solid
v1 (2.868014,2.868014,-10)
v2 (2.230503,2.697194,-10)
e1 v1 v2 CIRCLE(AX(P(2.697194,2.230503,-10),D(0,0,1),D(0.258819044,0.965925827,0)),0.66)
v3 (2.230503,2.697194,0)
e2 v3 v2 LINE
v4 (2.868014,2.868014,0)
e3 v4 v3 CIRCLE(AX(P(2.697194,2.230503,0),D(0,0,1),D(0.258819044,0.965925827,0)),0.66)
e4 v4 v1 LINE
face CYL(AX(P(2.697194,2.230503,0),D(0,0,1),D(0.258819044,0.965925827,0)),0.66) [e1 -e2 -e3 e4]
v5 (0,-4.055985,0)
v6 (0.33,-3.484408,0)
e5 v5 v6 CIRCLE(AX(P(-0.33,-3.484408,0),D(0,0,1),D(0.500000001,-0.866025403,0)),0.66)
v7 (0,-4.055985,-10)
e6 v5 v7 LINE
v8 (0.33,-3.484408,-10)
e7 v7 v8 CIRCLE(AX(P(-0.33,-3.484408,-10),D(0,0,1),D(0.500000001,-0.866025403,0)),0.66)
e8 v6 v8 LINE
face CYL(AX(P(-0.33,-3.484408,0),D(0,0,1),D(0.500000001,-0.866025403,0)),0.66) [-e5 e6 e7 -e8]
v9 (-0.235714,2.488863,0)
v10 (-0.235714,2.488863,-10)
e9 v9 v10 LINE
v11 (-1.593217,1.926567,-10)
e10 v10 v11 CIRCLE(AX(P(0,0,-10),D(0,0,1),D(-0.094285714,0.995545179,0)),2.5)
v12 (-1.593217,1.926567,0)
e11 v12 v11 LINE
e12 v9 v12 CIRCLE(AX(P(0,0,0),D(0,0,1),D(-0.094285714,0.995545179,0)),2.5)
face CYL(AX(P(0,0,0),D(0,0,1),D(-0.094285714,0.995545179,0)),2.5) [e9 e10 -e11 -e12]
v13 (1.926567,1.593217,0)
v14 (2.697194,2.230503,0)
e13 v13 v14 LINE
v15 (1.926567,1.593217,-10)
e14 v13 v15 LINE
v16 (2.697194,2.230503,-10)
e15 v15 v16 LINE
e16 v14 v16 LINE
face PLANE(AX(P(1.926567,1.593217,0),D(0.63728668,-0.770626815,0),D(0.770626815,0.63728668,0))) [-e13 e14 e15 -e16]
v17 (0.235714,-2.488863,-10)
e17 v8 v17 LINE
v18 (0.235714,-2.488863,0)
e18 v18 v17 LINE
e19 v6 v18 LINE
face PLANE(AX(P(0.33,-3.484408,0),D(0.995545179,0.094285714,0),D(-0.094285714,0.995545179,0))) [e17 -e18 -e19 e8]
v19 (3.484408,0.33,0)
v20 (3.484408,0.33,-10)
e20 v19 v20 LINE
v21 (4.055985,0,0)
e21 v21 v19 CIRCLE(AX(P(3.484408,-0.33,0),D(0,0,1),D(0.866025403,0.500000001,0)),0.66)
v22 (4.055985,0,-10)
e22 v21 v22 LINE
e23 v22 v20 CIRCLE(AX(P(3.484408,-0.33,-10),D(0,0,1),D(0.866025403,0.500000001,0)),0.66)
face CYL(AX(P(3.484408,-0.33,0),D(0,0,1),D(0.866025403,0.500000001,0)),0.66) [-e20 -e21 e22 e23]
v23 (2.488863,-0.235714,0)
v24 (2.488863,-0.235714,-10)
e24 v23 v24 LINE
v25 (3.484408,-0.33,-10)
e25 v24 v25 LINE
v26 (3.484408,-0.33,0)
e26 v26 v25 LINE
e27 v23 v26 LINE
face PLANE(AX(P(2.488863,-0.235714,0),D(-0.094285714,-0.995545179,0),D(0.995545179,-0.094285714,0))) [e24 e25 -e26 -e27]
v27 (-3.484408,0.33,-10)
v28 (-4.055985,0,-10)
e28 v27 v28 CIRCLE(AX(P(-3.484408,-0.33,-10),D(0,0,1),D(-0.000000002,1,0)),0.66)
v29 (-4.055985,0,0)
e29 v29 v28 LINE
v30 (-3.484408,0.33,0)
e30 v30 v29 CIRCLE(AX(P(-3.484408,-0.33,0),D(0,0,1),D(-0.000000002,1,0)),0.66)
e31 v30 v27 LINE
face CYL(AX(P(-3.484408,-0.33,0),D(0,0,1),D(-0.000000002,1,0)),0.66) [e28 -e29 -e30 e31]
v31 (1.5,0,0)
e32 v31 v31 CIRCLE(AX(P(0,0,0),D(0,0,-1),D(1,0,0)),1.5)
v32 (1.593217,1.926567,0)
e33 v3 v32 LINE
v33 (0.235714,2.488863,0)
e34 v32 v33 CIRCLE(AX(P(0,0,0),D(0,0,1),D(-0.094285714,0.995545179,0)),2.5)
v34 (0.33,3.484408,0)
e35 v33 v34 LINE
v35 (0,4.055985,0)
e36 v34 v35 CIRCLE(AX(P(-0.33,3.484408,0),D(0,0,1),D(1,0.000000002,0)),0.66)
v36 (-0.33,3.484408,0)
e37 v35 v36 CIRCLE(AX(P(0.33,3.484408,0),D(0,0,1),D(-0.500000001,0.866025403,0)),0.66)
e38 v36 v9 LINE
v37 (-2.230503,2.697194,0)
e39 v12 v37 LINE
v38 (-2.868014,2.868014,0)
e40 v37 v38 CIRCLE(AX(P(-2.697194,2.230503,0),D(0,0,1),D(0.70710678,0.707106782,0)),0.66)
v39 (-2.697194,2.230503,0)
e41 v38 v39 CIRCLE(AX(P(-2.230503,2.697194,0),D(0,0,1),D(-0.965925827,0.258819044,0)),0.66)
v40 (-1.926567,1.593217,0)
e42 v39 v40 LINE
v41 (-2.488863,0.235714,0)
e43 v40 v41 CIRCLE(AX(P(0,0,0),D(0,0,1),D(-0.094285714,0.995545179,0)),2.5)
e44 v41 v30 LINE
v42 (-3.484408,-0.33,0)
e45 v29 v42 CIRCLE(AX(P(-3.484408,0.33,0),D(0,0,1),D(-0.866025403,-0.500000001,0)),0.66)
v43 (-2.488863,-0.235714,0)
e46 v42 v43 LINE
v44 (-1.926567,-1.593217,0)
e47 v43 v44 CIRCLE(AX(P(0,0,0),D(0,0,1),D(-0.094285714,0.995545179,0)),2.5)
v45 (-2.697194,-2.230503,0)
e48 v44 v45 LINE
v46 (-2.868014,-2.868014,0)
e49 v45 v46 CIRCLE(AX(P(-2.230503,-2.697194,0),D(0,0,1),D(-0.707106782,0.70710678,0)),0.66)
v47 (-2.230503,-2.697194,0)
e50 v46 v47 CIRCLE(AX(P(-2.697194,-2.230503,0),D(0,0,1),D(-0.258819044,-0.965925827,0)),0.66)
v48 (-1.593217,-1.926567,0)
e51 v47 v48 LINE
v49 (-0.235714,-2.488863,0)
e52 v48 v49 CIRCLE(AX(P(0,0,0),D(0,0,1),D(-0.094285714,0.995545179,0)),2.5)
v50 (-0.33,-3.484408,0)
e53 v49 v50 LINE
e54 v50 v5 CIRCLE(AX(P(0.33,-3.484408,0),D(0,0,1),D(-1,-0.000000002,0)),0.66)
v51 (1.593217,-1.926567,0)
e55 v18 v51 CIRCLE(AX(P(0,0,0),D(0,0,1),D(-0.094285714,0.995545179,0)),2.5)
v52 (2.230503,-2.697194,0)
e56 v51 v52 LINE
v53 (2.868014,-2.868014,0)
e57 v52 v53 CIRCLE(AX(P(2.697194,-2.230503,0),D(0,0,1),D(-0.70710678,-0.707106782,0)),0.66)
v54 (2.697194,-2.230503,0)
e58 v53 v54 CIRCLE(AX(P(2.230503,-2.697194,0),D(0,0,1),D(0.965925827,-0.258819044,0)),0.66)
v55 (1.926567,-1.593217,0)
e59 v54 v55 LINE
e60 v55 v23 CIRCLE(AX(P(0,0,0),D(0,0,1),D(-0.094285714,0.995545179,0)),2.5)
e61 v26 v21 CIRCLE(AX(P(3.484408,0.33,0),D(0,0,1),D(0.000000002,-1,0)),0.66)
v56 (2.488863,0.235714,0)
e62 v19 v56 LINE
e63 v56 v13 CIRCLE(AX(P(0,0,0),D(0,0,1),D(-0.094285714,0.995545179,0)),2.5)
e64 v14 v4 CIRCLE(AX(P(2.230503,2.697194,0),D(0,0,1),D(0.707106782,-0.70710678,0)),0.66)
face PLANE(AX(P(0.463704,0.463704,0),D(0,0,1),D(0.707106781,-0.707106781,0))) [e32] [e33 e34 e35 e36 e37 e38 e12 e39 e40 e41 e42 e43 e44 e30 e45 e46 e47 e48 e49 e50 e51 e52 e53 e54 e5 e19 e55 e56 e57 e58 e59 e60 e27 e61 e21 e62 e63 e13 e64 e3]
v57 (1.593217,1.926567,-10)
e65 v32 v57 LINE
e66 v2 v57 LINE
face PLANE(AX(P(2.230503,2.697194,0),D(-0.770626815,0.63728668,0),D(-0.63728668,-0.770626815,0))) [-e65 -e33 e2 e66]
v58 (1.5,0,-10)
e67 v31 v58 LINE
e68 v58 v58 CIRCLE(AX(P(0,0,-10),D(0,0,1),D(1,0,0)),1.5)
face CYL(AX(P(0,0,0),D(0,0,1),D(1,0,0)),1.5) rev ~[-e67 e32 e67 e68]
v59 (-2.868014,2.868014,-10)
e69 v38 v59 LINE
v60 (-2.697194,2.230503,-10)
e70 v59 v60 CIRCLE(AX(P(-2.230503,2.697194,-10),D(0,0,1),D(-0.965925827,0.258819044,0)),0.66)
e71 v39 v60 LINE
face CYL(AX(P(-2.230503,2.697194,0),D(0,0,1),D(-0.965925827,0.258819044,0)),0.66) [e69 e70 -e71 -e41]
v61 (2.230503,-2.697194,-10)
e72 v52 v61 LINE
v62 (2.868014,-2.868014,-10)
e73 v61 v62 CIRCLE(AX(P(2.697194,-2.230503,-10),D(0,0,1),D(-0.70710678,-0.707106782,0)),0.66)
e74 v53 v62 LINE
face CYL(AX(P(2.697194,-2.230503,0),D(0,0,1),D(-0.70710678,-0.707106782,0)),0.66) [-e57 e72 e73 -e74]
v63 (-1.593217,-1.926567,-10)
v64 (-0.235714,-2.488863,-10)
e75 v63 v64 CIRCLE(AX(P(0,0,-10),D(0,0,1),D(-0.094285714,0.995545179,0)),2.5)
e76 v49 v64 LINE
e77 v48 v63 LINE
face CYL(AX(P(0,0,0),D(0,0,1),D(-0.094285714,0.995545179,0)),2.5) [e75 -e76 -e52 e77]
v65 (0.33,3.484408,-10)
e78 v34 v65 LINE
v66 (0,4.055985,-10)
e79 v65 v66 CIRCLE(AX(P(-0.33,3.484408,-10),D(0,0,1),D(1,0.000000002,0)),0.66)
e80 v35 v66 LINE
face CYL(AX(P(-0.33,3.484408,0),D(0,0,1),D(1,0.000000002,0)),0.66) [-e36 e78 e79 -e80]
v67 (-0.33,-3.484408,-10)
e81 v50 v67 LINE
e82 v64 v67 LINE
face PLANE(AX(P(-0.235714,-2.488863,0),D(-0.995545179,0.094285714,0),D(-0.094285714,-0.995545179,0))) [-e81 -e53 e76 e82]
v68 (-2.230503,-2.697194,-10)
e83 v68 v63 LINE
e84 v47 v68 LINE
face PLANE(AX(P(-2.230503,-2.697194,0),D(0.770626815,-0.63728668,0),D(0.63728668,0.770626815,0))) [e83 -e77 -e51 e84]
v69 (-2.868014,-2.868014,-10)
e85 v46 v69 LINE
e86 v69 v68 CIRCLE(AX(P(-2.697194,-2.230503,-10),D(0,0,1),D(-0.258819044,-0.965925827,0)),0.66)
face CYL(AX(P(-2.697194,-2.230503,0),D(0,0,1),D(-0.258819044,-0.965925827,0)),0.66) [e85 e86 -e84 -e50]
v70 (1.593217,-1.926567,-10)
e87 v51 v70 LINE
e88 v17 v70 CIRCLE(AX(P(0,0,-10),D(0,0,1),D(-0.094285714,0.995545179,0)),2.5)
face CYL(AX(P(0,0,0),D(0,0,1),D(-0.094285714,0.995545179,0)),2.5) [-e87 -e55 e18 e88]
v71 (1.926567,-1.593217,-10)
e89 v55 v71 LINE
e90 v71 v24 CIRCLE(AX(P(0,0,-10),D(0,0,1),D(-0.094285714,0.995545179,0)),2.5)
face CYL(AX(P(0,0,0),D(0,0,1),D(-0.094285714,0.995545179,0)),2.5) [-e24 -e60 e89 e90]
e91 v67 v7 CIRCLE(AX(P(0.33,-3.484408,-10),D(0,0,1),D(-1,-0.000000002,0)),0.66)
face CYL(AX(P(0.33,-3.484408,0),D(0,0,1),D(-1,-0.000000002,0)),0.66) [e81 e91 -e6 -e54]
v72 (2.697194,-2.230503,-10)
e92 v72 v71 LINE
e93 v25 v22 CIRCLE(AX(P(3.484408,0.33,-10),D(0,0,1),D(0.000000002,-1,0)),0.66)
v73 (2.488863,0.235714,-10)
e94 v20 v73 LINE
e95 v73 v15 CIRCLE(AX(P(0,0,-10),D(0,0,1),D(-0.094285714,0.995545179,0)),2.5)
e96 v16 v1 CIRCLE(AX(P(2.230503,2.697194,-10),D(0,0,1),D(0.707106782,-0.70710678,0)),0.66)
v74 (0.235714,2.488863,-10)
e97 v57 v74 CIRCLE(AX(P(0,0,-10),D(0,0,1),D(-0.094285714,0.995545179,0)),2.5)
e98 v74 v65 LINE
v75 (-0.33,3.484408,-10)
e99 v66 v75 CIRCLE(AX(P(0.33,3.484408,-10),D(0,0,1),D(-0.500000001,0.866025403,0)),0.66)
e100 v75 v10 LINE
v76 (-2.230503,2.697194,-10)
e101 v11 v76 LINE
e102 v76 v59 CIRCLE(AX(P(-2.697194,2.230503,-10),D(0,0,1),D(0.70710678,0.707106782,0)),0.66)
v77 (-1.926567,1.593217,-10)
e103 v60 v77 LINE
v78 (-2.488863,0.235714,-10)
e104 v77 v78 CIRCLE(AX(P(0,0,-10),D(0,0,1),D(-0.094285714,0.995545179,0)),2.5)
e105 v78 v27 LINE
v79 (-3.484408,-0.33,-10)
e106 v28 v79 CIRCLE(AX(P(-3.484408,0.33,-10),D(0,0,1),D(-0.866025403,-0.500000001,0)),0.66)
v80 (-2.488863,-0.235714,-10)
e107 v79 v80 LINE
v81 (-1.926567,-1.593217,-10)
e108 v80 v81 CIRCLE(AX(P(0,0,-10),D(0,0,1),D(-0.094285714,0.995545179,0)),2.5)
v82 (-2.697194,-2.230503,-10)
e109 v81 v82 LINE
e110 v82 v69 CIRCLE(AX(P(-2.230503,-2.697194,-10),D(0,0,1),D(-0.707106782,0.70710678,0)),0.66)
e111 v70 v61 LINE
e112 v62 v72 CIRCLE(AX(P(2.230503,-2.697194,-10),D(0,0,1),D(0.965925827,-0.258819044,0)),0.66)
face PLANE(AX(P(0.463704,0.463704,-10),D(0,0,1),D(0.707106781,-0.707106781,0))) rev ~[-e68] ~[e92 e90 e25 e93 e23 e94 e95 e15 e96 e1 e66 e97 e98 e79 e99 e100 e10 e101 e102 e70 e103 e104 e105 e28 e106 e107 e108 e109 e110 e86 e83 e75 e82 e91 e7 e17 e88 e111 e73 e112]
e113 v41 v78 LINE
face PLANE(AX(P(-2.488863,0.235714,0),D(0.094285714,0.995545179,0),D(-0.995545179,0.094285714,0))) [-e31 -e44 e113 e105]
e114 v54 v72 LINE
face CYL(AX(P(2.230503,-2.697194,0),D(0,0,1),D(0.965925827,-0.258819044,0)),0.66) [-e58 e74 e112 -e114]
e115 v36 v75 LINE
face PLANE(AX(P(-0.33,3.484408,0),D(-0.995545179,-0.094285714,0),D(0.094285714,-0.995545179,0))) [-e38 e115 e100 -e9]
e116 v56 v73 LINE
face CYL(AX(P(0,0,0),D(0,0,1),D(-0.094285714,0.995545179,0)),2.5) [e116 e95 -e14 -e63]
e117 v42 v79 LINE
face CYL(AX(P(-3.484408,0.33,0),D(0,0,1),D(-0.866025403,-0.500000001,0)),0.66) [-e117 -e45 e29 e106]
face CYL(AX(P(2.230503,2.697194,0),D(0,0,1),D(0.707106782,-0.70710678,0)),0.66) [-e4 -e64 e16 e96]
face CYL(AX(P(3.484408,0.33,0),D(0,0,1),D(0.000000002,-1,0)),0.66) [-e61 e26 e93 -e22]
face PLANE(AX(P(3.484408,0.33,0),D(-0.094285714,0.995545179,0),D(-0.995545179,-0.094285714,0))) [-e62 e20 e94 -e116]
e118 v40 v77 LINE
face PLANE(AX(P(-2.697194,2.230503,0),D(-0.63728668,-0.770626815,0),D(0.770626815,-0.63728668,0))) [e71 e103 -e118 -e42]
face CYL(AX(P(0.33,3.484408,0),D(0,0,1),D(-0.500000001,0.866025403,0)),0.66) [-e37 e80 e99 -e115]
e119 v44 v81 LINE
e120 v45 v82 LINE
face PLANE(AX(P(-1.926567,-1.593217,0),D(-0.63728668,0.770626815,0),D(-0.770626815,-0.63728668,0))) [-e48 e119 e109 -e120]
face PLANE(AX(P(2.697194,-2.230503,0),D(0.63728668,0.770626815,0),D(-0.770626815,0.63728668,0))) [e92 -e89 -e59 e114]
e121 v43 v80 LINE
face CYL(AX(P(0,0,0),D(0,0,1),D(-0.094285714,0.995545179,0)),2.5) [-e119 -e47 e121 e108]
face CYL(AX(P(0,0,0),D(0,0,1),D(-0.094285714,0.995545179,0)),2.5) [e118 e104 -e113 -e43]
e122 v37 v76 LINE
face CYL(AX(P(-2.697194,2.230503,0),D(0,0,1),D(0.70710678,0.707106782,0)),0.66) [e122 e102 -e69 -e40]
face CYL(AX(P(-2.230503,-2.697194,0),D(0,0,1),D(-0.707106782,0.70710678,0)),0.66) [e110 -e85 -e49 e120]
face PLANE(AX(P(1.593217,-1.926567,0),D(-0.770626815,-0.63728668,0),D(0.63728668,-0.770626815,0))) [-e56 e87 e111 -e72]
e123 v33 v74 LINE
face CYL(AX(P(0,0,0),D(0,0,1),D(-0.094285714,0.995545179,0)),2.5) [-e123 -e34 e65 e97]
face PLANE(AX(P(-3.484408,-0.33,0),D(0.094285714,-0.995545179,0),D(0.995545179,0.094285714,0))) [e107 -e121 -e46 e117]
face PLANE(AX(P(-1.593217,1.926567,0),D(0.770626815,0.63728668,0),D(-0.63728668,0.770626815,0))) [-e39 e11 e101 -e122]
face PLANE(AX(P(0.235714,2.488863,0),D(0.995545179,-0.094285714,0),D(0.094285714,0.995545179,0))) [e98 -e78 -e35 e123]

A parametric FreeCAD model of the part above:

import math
import FreeCAD as App
import Part
import Sketcher

V = App.Vector

doc = App.newDocument("Part")
body = doc.addObject("PartDesign::Body", "Body")

# Sketch on XY plane
sketch1 = doc.addObject("Sketcher::SketchObject", "Sketch")
body.addObject(sketch1)
sketch1.AttachmentSupport = (doc.XY_Plane, [""])
sketch1.MapMode = "FlatFace"
sketch1.addGeometry([
    Part.LineSegment(V(-0.33, 3.484408, 0), V(-0.235714, 2.488863, 0)),  # 0
    Part.ArcOfCircle(Part.Circle(V(0, 0, 0), V(0, 0, 1), 2.5), math.radians(95.41021), math.radians(444.58979)),  # 1
    Part.LineSegment(V(0.235714, 2.488863, 0), V(0.33, 3.484408, 0)),  # 2
    Part.ArcOfCircle(Part.Circle(V(-0.33, 3.484408, 0), V(0, 0, 1), 0.66), math.radians(0), math.radians(60)),  # 3
    Part.ArcOfCircle(Part.Circle(V(0.33, 3.484408, 0), V(0, 0, 1), 0.66), math.radians(120), math.radians(180)),  # 4
    Part.Circle(V(0, 0, 0), V(0, 0, 1), 1.5),  # 5
], False)
sketch1.addConstraint([
    Sketcher.Constraint("Coincident", 0, 2, 1, 1),
    Sketcher.Constraint("Coincident", 1, 2, 2, 1),
    Sketcher.Constraint("Coincident", 2, 2, 3, 1),
    Sketcher.Constraint("Coincident", 3, 2, 4, 1),
    Sketcher.Constraint("Coincident", 4, 2, 0, 1),
    Sketcher.Constraint("Coincident", 1, 3, -1, 1),
    Sketcher.Constraint("Coincident", 5, 3, -1, 1),
    Sketcher.Constraint("Coincident", 2, 2, 4, 3),
    Sketcher.Constraint("Coincident", 4, 2, 3, 3),
    Sketcher.Constraint("Symmetric", 3, 3, 4, 3, -2),
    Sketcher.Constraint("Horizontal", 0, 2, 1, 2),
    Sketcher.Constraint("Diameter", 5, 3.0),
    Sketcher.Constraint("Radius", 1, 2.5),
    Sketcher.Constraint("Radius", 3, 0.66),
    Sketcher.Constraint("Distance", 0, 1.0),
    Sketcher.Constraint("DistanceX", 0, 2, 1, 2, 0.471429),
])
pad1 = doc.addObject("PartDesign::Pad", "Pad")
body.addObject(pad1)
pad1.Profile = sketch1
pad1.Length = 10
pad1.Reversed = True
doc.recompute()

polarpattern = doc.addObject("PartDesign::PolarPattern", "PolarPattern")
body.addObject(polarpattern)
polarpattern.Originals = [pad1]
polarpattern.Axis = (doc.Z_Axis, [""])
polarpattern.Angle = 360
polarpattern.Occurrences = 8
body.Tip = polarpattern

doc.recompute()
